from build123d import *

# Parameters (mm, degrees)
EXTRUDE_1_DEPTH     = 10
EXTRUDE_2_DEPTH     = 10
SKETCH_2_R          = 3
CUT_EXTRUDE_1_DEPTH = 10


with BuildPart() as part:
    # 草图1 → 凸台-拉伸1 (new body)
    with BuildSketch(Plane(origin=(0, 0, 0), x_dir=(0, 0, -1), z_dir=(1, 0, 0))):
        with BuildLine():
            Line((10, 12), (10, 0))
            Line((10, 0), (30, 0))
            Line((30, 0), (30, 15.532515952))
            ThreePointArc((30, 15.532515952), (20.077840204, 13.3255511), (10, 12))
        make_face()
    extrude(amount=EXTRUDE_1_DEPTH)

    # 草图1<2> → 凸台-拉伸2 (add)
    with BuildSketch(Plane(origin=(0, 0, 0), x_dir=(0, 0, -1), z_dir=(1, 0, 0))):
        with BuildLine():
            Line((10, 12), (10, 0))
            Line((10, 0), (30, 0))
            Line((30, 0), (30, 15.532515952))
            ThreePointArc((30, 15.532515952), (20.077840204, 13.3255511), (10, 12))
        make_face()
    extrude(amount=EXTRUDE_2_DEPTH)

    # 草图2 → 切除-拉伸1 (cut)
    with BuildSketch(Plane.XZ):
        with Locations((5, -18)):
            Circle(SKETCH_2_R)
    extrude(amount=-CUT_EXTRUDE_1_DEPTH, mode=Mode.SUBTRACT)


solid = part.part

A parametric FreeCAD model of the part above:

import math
import FreeCAD as App
import Part
import Sketcher

doc = App.newDocument("Part")
params = doc.addObject("Spreadsheet::Sheet", "Params")
for row, (alias, value) in enumerate([
    ("sketch1_width", "12 mm"),
    ("sketch1_height", "20 mm"),
    ("pad1_length", "10 mm"),
    ("sketch2_width", "12 mm"),
    ("sketch2_height", "20 mm"),
    ("pad2_length", "10 mm"),
    ("sketch3_diameter", "6 mm"),
    ("pocket1_length", "10 mm"),
], start=1):
    params.set(f"A{row}", alias)
    params.set(f"B{row}", "=" + value)
    params.setAlias(f"B{row}", alias)

body = doc.addObject("PartDesign::Body", "Body")

sketch1 = body.newObject("Sketcher::SketchObject", "Sketch")
sketch1.AttachmentSupport = (doc.getObject("YZ_Plane"), [""])
sketch1.MapMode = "FlatFace"
sketch1.addGeometry([
    Part.LineSegment(App.Vector(12, -10, 0), App.Vector(0, -10, 0)),
    Part.LineSegment(App.Vector(0, -10, 0), App.Vector(0, -30, 0)),
    Part.LineSegment(App.Vector(0, -30, 0), App.Vector(16, -30, 0)),
    Part.ArcOfCircle(Part.Circle(App.Vector(127, 0, 0), App.Vector(0, 0, 1), 115), math.radians(-175.03), math.radians(-164.94)),
], False)
sketch1.addConstraint([
    Sketcher.Constraint("Coincident", 0, 2, 1, 1),
    Sketcher.Constraint("Coincident", 1, 2, 2, 1),
    Sketcher.Constraint("Coincident", 2, 2, 3, 2),
    Sketcher.Constraint("Coincident", 3, 1, 0, 1),
    Sketcher.Constraint("Horizontal", 0),
    Sketcher.Constraint("Vertical", 1),
    Sketcher.Constraint("Horizontal", 2),
    Sketcher.Constraint("PointOnObject", 3, 3, -1),
    Sketcher.Constraint("PointOnObject", 0, 2, -2),
    Sketcher.Constraint("DistanceX", 0, 2, 0, 1, 12.0),
    Sketcher.Constraint("DistanceY", 1, 2, 1, 1, 20.0),
    Sketcher.Constraint("DistanceX", -1, 1, 3, 3, 127.0),
    Sketcher.Constraint("DistanceY", 0, 2, -1, 1, 10.0),
])
sketch1.setExpression("Constraints[9]", "Params.sketch1_width")
sketch1.setExpression("Constraints[10]", "Params.sketch1_height")
pad1 = body.newObject("PartDesign::Pad", "Pad")
pad1.Profile = sketch1
pad1.setExpression("Length", "Params.pad1_length")

sketch2 = body.newObject("Sketcher::SketchObject", "Sketch001")
sketch2.AttachmentSupport = (doc.getObject("YZ_Plane"), [""])
sketch2.MapMode = "FlatFace"
sketch2.addGeometry([
    Part.LineSegment(App.Vector(12, -10, 0), App.Vector(0, -10, 0)),
    Part.LineSegment(App.Vector(0, -10, 0), App.Vector(0, -30, 0)),
    Part.LineSegment(App.Vector(0, -30, 0), App.Vector(16, -30, 0)),
    Part.ArcOfCircle(Part.Circle(App.Vector(127, 0, 0), App.Vector(0, 0, 1), 115), math.radians(-175.03), math.radians(-164.94)),
], False)
sketch2.addConstraint([
    Sketcher.Constraint("Coincident", 0, 2, 1, 1),
    Sketcher.Constraint("Coincident", 1, 2, 2, 1),
    Sketcher.Constraint("Coincident", 2, 2, 3, 2),
    Sketcher.Constraint("Coincident", 3, 1, 0, 1),
    Sketcher.Constraint("Horizontal", 0),
    Sketcher.Constraint("Vertical", 1),
    Sketcher.Constraint("Horizontal", 2),
    Sketcher.Constraint("PointOnObject", 3, 3, -1),
    Sketcher.Constraint("PointOnObject", 0, 2, -2),
    Sketcher.Constraint("DistanceX", 0, 2, 0, 1, 12.0),
    Sketcher.Constraint("DistanceY", 1, 2, 1, 1, 20.0),
    Sketcher.Constraint("DistanceX", -1, 1, 3, 3, 127.0),
    Sketcher.Constraint("DistanceY", 0, 2, -1, 1, 10.0),
])
sketch2.setExpression("Constraints[9]", "Params.sketch2_width")
sketch2.setExpression("Constraints[10]", "Params.sketch2_height")
pad2 = body.newObject("PartDesign::Pad", "Pad001")
pad2.Profile = sketch2
pad2.setExpression("Length", "Params.pad2_length")

sketch3 = body.newObject("Sketcher::SketchObject", "Sketch002")
sketch3.AttachmentSupport = (doc.getObject("XZ_Plane"), [""])
sketch3.MapMode = "FlatFace"
sketch3.addGeometry(Part.Circle(App.Vector(5, -18, 0), App.Vector(0, 0, 1), 3), False)
sketch3.addConstraint([
    Sketcher.Constraint("Diameter", 0, 6.0),
    Sketcher.Constraint("DistanceX", -1, 1, 0, 3, 5.0),
    Sketcher.Constraint("DistanceY", 0, 3, -1, 1, 18.0),
])
sketch3.setExpression("Constraints[0]", "Params.sketch3_diameter")
pocket1 = body.newObject("PartDesign::Pocket", "Pocket")
pocket1.Profile = sketch3
pocket1.setExpression("Length", "Params.pocket1_length")

doc.recompute()
